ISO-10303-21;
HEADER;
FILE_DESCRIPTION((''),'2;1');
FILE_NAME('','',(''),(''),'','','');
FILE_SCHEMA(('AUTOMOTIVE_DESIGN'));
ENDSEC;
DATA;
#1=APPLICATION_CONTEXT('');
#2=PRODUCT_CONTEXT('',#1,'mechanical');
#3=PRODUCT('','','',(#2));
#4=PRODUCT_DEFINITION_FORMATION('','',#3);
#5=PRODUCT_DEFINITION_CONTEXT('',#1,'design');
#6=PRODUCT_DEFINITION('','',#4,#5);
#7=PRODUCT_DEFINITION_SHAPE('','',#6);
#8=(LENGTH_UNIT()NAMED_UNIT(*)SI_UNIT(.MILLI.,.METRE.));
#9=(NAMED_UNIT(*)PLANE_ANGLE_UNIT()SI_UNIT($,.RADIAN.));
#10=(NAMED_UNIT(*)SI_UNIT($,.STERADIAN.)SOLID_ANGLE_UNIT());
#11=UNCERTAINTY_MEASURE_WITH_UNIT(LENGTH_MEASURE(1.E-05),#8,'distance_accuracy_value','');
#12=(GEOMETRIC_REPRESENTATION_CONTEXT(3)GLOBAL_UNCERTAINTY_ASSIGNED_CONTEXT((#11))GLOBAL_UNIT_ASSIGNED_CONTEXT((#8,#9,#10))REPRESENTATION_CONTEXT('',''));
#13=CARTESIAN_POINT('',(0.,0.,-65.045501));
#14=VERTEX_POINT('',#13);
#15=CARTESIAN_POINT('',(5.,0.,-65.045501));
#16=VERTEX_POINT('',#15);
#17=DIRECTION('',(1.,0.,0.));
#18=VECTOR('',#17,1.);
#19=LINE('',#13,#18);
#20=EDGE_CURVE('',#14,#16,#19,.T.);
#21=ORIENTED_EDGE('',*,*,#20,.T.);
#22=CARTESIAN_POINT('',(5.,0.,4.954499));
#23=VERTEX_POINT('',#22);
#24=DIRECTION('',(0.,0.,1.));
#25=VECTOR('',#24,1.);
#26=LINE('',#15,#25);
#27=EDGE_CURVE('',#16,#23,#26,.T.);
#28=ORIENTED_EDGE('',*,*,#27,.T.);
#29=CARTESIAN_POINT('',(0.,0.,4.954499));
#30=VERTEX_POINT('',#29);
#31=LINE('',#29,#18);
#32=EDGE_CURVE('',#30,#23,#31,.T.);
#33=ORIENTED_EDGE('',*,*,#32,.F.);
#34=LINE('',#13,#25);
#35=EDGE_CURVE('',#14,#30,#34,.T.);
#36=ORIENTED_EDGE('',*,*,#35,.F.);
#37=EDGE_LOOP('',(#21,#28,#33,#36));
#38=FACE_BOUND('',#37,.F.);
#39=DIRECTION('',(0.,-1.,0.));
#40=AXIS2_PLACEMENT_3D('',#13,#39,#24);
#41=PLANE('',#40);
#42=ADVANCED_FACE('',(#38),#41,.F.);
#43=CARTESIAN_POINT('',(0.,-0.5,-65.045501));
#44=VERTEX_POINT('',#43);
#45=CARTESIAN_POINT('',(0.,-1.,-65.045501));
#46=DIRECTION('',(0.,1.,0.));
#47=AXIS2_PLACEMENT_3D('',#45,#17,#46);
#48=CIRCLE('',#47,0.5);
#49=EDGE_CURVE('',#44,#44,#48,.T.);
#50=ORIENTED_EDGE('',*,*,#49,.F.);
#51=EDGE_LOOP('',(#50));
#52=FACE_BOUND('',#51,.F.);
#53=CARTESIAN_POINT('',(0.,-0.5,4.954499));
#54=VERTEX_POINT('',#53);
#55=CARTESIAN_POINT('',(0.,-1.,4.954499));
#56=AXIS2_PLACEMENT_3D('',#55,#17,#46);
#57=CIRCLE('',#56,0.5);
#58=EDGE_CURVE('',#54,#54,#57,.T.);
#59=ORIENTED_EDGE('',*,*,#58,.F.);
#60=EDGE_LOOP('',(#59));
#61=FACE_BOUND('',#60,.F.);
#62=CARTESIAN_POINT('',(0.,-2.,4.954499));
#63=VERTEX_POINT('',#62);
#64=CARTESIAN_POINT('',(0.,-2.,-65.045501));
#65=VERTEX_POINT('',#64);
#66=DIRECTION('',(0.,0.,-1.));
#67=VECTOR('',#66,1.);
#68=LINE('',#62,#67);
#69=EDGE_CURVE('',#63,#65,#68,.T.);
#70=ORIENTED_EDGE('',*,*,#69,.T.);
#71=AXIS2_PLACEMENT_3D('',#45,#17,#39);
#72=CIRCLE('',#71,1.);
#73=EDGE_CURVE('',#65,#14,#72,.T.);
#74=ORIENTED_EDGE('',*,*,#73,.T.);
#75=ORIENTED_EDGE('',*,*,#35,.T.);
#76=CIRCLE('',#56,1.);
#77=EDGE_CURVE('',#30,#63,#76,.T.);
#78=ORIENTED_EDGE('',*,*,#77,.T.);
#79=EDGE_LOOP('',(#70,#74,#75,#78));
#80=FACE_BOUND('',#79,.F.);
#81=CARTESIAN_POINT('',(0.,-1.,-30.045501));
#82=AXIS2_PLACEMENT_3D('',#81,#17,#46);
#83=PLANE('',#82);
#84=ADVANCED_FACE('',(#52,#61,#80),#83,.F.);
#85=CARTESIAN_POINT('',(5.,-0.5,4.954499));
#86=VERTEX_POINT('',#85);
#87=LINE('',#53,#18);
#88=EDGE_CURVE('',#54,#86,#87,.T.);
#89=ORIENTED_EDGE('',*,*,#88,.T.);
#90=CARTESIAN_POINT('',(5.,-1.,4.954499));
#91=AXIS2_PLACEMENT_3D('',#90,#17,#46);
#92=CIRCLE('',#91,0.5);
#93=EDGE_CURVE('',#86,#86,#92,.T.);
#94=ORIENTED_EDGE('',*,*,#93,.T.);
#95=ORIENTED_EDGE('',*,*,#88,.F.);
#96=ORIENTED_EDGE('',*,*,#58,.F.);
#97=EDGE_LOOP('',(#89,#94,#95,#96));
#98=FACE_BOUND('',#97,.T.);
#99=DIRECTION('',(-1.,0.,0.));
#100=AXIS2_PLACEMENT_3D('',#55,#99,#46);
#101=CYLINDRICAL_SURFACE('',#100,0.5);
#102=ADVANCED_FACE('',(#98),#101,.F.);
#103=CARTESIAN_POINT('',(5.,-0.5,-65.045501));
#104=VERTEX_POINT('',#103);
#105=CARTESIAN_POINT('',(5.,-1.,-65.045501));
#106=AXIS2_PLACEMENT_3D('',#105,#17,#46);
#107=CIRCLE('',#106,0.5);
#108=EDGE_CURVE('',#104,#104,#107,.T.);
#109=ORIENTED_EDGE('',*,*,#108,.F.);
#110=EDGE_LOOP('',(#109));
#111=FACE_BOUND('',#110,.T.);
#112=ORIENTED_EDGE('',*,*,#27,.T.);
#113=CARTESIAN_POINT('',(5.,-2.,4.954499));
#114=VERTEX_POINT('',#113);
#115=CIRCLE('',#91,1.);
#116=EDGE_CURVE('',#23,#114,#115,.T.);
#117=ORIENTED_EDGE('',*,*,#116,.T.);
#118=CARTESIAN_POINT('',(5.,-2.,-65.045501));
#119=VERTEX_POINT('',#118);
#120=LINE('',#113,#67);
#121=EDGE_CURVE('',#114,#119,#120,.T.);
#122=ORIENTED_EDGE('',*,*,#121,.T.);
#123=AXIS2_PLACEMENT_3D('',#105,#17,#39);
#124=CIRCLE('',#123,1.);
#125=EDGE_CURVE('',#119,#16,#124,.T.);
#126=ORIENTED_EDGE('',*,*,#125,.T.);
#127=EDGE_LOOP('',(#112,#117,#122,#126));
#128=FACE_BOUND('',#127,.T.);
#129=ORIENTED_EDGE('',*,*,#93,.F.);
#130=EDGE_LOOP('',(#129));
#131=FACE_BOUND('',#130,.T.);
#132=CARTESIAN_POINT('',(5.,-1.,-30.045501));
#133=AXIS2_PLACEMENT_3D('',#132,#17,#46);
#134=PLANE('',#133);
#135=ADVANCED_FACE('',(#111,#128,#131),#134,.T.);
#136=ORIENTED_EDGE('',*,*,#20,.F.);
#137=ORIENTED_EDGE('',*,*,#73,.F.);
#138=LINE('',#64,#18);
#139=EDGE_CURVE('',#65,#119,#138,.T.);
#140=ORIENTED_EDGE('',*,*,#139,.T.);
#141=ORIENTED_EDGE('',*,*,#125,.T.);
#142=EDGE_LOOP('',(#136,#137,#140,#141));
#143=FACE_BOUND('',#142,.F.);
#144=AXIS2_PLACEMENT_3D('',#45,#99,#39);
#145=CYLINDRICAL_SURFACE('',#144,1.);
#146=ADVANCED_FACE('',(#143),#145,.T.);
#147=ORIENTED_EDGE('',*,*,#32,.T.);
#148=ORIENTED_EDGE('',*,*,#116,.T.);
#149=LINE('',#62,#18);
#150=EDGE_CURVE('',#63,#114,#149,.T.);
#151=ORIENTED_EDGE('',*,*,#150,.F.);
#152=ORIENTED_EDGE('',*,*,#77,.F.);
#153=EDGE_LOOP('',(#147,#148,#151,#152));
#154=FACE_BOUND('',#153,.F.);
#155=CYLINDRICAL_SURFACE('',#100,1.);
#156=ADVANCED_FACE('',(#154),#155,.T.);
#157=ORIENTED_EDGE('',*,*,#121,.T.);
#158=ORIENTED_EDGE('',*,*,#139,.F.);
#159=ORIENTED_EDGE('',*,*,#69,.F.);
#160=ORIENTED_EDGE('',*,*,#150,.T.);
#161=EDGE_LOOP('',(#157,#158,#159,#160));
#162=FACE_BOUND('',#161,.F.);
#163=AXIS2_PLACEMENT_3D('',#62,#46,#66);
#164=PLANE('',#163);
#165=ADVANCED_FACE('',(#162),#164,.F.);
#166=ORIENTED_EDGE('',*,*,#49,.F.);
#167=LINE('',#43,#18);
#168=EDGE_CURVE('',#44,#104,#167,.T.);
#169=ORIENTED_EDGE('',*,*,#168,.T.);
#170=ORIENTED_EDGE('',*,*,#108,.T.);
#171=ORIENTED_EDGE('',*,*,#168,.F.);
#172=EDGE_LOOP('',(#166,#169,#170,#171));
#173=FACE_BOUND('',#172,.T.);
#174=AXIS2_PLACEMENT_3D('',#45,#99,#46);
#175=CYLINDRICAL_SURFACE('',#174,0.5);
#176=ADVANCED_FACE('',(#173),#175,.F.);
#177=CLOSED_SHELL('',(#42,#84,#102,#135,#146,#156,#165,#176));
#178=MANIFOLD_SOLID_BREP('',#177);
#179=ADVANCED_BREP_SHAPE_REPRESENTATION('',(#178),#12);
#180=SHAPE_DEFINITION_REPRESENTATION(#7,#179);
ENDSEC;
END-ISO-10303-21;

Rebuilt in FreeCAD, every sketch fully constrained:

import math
import FreeCAD as App
import Part
import Sketcher
Q = App.Units.Quantity

doc = App.newDocument("Part")
body = doc.addObject("PartDesign::Body", "Body")

sketch1 = body.newObject("Sketcher::SketchObject", "Sketch")
sketch1.AttachmentSupport = (doc.getObject("YZ_Plane"), [""])
sketch1.MapMode = "FlatFace"
sketch1.addGeometry([
    Part.LineSegment(App.Vector(0, -65, 0), App.Vector(0, 5, 0)),
    Part.ArcOfCircle(Part.Circle(App.Vector(-1, 5, 0), App.Vector(0, 0, 1), 1), math.radians(0), math.radians(180)),
    Part.LineSegment(App.Vector(-2, 5, 0), App.Vector(-2, -65, 0)),
    Part.ArcOfCircle(Part.Circle(App.Vector(-1, -65, 0), App.Vector(0, 0, 1), 1), math.radians(180), math.radians(360)),
    Part.Circle(App.Vector(-1, -65, 0), App.Vector(0, 0, 1), 0.5),
    Part.Circle(App.Vector(-1, 5, 0), App.Vector(0, 0, 1), 0.5),
], False)
sketch1.addConstraint([
    Sketcher.Constraint("Tangent", 0, 2, 1, 1),
    Sketcher.Constraint("Tangent", 1, 2, 2, 1),
    Sketcher.Constraint("Tangent", 2, 2, 3, 1),
    Sketcher.Constraint("Tangent", 3, 2, 0, 1),
    Sketcher.Constraint("Vertical", 0),
    Sketcher.Constraint("Vertical", 2),
    Sketcher.Constraint("Coincident", 4, 3, 3, 3),
    Sketcher.Constraint("Coincident", 5, 3, 1, 3),
    Sketcher.Constraint("Equal", 4, 5),
    Sketcher.Constraint("PointOnObject", 0, 2, -2),
    Sketcher.Constraint("Diameter", 4, Q("1 mm")),
    Sketcher.Constraint("Radius", 1, Q("1 mm")),
    Sketcher.Constraint("DistanceY", 0, 1, 0, 2, Q("70 mm")),
    Sketcher.Constraint("DistanceY", -1, 1, 1, 3, Q("4.954499 mm")),
])
pad1 = body.newObject("PartDesign::Pad", "Pad")
pad1.Profile = sketch1
pad1.Length = 5

doc.recompute()
